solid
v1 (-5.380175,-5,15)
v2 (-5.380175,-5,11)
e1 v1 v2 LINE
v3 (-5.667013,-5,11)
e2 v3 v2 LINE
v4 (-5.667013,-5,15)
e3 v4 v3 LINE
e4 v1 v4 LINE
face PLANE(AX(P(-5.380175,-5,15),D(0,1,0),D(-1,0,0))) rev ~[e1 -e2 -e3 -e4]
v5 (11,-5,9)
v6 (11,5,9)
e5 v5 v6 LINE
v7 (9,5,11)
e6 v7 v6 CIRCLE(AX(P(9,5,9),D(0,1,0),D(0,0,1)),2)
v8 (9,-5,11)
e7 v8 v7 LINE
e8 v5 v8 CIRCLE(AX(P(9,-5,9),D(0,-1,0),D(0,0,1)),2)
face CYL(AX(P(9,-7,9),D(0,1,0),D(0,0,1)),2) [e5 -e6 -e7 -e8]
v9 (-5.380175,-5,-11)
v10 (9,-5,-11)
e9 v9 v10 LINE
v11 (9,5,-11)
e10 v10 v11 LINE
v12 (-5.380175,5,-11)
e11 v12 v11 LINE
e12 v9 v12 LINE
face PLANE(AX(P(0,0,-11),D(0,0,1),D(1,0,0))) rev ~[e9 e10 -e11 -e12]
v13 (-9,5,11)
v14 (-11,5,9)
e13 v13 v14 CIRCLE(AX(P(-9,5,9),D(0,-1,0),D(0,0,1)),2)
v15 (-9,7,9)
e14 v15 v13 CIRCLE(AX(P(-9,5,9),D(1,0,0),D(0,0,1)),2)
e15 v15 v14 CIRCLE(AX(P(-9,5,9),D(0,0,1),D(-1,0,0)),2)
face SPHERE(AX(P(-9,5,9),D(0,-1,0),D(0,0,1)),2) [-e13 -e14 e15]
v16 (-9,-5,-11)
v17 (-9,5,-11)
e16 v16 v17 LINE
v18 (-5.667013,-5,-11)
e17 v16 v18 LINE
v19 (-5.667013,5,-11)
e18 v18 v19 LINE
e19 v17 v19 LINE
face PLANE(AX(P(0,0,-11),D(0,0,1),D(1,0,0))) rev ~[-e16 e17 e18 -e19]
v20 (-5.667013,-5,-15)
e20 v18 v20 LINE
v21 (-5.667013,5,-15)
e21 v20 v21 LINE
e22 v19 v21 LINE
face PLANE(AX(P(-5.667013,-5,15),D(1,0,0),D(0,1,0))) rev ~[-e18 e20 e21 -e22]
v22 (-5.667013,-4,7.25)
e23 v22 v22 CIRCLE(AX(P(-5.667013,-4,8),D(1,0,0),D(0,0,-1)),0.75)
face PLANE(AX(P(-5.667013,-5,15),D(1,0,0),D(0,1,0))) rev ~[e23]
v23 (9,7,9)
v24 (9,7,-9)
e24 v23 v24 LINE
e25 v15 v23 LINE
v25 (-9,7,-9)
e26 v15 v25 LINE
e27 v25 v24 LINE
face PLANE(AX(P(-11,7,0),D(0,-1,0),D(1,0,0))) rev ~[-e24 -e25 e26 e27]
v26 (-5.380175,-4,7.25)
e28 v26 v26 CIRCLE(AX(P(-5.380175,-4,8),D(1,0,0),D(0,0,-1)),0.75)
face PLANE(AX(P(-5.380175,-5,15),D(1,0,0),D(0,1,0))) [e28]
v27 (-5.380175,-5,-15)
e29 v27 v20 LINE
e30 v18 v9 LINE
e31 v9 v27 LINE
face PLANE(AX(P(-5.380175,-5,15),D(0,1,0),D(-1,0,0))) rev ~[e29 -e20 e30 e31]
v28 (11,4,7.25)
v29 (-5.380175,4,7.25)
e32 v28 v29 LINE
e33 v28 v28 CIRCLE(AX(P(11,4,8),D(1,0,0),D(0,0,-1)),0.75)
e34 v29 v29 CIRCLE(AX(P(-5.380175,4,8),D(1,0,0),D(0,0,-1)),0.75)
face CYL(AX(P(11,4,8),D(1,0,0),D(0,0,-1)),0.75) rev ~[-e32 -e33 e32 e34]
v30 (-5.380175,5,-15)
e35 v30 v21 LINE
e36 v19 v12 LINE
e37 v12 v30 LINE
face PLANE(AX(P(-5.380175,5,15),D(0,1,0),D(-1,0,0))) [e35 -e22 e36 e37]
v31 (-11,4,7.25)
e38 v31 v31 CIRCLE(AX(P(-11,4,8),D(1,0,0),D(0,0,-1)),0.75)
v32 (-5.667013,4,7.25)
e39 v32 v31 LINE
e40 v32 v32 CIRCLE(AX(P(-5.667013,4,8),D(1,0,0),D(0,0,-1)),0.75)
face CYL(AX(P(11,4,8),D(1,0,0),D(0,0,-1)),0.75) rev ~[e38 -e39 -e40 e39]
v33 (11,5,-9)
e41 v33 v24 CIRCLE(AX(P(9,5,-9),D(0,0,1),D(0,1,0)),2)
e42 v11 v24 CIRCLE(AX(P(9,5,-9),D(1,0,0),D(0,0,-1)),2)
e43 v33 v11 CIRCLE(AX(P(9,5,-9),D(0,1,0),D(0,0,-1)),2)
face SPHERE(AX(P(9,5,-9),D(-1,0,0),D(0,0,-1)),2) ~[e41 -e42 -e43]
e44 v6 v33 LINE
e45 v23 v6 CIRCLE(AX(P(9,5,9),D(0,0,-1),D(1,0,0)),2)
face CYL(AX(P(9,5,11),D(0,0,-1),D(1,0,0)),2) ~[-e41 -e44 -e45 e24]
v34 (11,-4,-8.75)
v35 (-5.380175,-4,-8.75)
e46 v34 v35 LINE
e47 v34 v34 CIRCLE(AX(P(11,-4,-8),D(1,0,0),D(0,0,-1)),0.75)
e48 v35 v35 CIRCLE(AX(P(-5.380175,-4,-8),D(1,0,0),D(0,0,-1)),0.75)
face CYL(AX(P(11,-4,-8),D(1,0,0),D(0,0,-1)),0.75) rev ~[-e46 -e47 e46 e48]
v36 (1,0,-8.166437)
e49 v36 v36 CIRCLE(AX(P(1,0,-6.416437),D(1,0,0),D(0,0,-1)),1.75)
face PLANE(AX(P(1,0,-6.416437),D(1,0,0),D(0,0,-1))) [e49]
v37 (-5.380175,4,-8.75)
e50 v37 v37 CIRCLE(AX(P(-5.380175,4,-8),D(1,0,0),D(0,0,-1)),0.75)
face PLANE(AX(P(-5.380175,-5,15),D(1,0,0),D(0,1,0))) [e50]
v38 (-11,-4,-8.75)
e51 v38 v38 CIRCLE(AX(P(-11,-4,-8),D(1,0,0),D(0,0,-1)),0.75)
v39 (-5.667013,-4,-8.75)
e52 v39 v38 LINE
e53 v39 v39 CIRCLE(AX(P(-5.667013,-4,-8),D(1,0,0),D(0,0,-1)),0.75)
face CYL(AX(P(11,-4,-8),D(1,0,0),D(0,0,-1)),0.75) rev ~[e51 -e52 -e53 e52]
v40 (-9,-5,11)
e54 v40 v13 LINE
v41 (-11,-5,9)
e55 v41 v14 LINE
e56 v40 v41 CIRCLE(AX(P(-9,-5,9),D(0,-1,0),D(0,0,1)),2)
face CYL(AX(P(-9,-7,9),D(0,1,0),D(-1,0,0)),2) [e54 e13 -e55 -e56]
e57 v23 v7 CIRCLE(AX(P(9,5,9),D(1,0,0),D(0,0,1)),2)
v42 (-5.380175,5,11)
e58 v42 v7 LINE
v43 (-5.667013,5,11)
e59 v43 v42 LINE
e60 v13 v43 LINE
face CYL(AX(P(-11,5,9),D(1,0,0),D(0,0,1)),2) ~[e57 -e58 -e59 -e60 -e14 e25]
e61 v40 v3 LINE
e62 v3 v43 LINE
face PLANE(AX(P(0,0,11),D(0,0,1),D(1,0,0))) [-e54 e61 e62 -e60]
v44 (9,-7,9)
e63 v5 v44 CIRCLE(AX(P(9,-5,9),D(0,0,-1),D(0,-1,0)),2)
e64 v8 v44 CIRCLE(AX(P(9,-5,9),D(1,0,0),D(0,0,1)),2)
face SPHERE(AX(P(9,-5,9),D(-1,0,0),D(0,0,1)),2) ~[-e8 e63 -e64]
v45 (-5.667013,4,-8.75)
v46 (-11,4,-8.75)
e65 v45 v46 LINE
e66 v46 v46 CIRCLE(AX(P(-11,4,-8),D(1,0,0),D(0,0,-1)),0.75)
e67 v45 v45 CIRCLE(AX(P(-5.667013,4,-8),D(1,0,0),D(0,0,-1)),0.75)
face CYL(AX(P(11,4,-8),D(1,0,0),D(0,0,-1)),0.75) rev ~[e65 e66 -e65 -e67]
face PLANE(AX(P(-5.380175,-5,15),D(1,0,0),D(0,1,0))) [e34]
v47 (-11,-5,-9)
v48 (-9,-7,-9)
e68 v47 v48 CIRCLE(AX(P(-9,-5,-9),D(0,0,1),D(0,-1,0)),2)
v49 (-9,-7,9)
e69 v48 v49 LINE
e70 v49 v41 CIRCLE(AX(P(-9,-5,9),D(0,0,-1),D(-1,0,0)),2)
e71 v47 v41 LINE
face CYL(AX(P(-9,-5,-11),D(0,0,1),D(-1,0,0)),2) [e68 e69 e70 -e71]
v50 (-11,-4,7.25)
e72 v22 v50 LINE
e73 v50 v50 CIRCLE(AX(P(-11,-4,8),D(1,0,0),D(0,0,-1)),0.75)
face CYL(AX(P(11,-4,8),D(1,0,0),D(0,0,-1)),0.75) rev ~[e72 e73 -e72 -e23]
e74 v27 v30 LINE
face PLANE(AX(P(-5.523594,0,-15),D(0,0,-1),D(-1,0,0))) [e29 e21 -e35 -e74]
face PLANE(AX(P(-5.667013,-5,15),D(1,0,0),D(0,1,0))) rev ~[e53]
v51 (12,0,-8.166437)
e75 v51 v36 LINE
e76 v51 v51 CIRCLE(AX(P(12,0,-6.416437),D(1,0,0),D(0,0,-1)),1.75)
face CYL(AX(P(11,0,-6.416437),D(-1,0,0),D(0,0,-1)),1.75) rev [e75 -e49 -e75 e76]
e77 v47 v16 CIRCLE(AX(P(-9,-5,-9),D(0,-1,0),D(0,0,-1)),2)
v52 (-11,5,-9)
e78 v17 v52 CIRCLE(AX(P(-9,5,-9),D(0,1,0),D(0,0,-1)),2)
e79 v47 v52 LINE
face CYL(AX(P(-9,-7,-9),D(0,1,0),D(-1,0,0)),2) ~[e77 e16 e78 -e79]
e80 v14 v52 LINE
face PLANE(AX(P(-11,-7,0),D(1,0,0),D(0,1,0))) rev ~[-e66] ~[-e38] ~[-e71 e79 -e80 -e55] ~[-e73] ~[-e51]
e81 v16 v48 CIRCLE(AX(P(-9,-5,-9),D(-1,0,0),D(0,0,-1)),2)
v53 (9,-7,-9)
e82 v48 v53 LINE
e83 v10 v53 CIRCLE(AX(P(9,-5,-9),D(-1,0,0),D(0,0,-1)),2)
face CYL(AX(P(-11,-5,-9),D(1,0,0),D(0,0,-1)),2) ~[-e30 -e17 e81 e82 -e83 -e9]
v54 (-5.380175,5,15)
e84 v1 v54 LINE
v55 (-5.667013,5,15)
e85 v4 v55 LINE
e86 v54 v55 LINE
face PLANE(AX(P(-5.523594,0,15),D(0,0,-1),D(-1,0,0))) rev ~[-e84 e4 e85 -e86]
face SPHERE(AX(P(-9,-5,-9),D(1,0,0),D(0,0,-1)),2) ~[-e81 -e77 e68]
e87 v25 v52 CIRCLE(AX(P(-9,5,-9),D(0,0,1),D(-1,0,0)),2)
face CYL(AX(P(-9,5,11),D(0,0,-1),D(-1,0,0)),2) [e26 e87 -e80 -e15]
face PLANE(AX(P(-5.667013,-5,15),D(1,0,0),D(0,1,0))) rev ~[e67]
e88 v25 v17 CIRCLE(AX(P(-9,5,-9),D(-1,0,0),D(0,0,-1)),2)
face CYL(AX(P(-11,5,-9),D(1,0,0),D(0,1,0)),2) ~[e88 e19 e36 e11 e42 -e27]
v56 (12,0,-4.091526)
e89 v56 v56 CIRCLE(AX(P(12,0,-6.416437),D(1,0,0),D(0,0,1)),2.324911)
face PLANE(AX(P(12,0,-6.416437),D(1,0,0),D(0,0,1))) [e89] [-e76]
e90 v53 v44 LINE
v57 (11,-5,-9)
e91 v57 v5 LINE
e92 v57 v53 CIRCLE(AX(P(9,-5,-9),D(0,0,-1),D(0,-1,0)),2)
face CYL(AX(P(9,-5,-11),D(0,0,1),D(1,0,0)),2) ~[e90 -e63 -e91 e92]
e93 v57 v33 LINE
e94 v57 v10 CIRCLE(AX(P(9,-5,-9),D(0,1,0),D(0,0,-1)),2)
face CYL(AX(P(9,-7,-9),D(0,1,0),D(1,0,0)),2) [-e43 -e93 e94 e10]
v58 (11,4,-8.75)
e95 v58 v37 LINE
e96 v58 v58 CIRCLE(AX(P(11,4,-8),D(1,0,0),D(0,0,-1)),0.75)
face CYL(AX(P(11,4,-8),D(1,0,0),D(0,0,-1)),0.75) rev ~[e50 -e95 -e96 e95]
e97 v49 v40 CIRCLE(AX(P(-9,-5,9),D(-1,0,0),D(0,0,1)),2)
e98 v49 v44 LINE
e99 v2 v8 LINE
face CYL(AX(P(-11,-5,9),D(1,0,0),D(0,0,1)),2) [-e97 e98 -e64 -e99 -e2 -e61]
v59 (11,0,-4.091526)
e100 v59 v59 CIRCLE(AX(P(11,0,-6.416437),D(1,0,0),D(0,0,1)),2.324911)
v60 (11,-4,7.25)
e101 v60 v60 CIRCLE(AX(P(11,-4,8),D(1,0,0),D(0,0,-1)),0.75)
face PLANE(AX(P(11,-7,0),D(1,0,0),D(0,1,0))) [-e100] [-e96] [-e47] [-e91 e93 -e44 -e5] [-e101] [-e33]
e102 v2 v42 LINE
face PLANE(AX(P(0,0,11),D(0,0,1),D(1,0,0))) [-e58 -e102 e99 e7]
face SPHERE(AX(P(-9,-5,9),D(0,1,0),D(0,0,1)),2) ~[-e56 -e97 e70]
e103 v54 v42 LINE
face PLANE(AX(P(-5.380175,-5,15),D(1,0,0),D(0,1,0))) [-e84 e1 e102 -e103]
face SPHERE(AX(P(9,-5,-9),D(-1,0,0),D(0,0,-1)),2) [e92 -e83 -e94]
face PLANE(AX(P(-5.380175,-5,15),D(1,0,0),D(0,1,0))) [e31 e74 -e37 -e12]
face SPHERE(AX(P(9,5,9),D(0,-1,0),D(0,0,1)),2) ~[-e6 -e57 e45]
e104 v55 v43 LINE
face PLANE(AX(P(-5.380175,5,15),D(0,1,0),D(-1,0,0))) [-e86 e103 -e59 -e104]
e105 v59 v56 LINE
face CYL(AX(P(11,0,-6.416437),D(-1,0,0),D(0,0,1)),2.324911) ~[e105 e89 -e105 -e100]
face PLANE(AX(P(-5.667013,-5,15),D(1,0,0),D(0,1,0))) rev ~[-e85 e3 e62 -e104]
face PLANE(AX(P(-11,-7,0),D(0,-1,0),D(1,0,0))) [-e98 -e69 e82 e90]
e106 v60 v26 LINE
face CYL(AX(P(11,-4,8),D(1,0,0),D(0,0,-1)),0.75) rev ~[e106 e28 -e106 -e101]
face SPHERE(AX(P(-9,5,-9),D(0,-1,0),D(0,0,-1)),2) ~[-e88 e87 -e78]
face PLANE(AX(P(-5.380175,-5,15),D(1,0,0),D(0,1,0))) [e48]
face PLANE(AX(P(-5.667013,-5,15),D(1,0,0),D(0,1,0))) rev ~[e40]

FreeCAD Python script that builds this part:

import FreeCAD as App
import Part
import Sketcher

V = App.Vector


def add_polygon(sketch, points):
    """Adds a closed chain of lines whose ends are joined by coincident constraints."""
    first, n = sketch.GeometryCount, len(points)
    for a, b in zip(points, points[1:] + points[:1]):
        sketch.addGeometry(Part.LineSegment(App.Vector(*a, 0), App.Vector(*b, 0)), False)
    for i in range(n):
        sketch.addConstraint(Sketcher.Constraint("Coincident", first + i, 2, first + (i + 1) % n, 1))

doc = App.newDocument("Part")
body = doc.addObject("PartDesign::Body", "Body")

# Sketch on XY plane
sketch1 = body.newObject("Sketcher::SketchObject", "Sketch")
sketch1.AttachmentSupport = (doc.getObject("XY_Plane"), [""])
sketch1.MapMode = "FlatFace"
add_polygon(sketch1, [(-11, 7), (-11, -7), (11, -7), (11, 7)])  # lines 0-3
sketch1.addConstraint([
    Sketcher.Constraint("Vertical", 0),
    Sketcher.Constraint("Horizontal", 1),
    Sketcher.Constraint("Vertical", 2),
    Sketcher.Constraint("Horizontal", 3),
    Sketcher.Constraint("Symmetric", 0, 2, 2, 2, -1, 1),
    Sketcher.Constraint("DistanceX", 1, 1, 1, 2, 22.0),
    Sketcher.Constraint("DistanceY", 0, 2, 0, 1, 14.0),
])
pad1 = body.newObject("PartDesign::Pad", "Pad")
pad1.Profile = sketch1
pad1.Length = 22
pad1.Midplane = True
doc.recompute()

fillet = body.newObject("PartDesign::Fillet", "Fillet")
fillet.Base = (pad1, ["Edge1"])
fillet.UseAllEdges = True
fillet.Radius = 2

# Sketch on YZ plane
sketch2 = body.newObject("Sketcher::SketchObject", "Sketch001")
sketch2.AttachmentSupport = (doc.getObject("YZ_Plane"), [""])
sketch2.MapMode = "FlatFace"
sketch2.AttachmentOffset = App.Placement(V(0, 0, 11), App.Rotation())
sketch2.addGeometry([
    Part.Circle(V(4, 8, 0), V(0, 0, 1), 0.75),
    Part.Circle(V(-4, 8, 0), V(0, 0, 1), 0.75),
    Part.Circle(V(-4, -8, 0), V(0, 0, 1), 0.75),
    Part.Circle(V(4, -8, 0), V(0, 0, 1), 0.75),
], False)
sketch2.addConstraint([
    Sketcher.Constraint("Equal", 0, 1),
    Sketcher.Constraint("Equal", 1, 2),
    Sketcher.Constraint("Equal", 2, 3),
    Sketcher.Constraint("Symmetric", 0, 3, 2, 3, -1, 1),
    Sketcher.Constraint("Symmetric", 1, 3, 3, 3, -1, 1),
    Sketcher.Constraint("Symmetric", 0, 3, 1, 3, -2),
    Sketcher.Constraint("Diameter", 0, 1.5),
    Sketcher.Constraint("DistanceX", -1, 1, 0, 3, 4.0),
    Sketcher.Constraint("DistanceY", -1, 1, 0, 3, 8.0),
])
pocket1 = body.newObject("PartDesign::Pocket", "Pocket")
pocket1.Profile = sketch2
pocket1.Length = 28

# Sketch on YZ plane
sketch3 = body.newObject("Sketcher::SketchObject", "Sketch002")
sketch3.AttachmentSupport = (doc.getObject("YZ_Plane"), [""])
sketch3.MapMode = "FlatFace"
sketch3.AttachmentOffset = App.Placement(V(0, 0, 11), App.Rotation())
sketch3.addGeometry([
    Part.Circle(V(0, -6.416437, 0), V(0, 0, 1), 2.324911),
    Part.Circle(V(0, -6.416437, 0), V(0, 0, 1), 1.75),
], False)
sketch3.addConstraint([
    Sketcher.Constraint("Coincident", 1, 3, 0, 3),
    Sketcher.Constraint("PointOnObject", 0, 3, -2),
    Sketcher.Constraint("Diameter", 1, 3.5),
    Sketcher.Constraint("Diameter", 0, 4.649821),
    Sketcher.Constraint("DistanceY", 0, 3, -1, 1, 6.416437),
])
pad2 = body.newObject("PartDesign::Pad", "Pad001")
pad2.Profile = sketch3
pad2.Length = 1

# Sketch on YZ plane
sketch4 = body.newObject("Sketcher::SketchObject", "Sketch003")
sketch4.AttachmentSupport = (doc.getObject("YZ_Plane"), [""])
sketch4.MapMode = "FlatFace"
sketch4.AttachmentOffset = App.Placement(V(0, 0, 1), App.Rotation())
sketch4.addGeometry(Part.Circle(V(0, -6.416437, 0), V(0, 0, 1), 1.75), False)
sketch4.addConstraint([
    Sketcher.Constraint("PointOnObject", 0, 3, -2),
    Sketcher.Constraint("Diameter", 0, 3.5),
    Sketcher.Constraint("DistanceY", 0, 3, -1, 1, 6.416437),
])
pocket2 = body.newObject("PartDesign::Pocket", "Pocket001")
pocket2.Profile = sketch4
pocket2.Length = 10
pocket2.Reversed = True

# Sketch on XY plane
sketch5 = body.newObject("Sketcher::SketchObject", "Sketch004")
sketch5.AttachmentSupport = (doc.getObject("XY_Plane"), [""])
sketch5.MapMode = "FlatFace"
sketch5.AttachmentOffset = App.Placement(V(0, 0, -11), App.Rotation())
add_polygon(sketch5, [(-5.380175, 5), (-5.380175, -5), (-5.667013, -5), (-5.667013, 5)])  # lines 0-3
sketch5.addConstraint([
    Sketcher.Constraint("Vertical", 0),
    Sketcher.Constraint("Horizontal", 1),
    Sketcher.Constraint("Vertical", 2),
    Sketcher.Constraint("Horizontal", 3),
    Sketcher.Constraint("DistanceY", 0, 2, 0, 1, 10.0),
    Sketcher.Constraint("DistanceY", 0, 2, -1, 1, 5.0),
    Sketcher.Constraint("DistanceX", 1, 2, 1, 1, 0.286838),
    Sketcher.Constraint("DistanceX", 0, 2, -1, 1, 5.380175),
])
pad3 = body.newObject("PartDesign::Pad", "Pad002")
pad3.Profile = sketch5
pad3.Type = "TwoLengths"
pad3.Length = 4
pad3.Length2 = 26
pad3.Reversed = True

doc.recompute()
